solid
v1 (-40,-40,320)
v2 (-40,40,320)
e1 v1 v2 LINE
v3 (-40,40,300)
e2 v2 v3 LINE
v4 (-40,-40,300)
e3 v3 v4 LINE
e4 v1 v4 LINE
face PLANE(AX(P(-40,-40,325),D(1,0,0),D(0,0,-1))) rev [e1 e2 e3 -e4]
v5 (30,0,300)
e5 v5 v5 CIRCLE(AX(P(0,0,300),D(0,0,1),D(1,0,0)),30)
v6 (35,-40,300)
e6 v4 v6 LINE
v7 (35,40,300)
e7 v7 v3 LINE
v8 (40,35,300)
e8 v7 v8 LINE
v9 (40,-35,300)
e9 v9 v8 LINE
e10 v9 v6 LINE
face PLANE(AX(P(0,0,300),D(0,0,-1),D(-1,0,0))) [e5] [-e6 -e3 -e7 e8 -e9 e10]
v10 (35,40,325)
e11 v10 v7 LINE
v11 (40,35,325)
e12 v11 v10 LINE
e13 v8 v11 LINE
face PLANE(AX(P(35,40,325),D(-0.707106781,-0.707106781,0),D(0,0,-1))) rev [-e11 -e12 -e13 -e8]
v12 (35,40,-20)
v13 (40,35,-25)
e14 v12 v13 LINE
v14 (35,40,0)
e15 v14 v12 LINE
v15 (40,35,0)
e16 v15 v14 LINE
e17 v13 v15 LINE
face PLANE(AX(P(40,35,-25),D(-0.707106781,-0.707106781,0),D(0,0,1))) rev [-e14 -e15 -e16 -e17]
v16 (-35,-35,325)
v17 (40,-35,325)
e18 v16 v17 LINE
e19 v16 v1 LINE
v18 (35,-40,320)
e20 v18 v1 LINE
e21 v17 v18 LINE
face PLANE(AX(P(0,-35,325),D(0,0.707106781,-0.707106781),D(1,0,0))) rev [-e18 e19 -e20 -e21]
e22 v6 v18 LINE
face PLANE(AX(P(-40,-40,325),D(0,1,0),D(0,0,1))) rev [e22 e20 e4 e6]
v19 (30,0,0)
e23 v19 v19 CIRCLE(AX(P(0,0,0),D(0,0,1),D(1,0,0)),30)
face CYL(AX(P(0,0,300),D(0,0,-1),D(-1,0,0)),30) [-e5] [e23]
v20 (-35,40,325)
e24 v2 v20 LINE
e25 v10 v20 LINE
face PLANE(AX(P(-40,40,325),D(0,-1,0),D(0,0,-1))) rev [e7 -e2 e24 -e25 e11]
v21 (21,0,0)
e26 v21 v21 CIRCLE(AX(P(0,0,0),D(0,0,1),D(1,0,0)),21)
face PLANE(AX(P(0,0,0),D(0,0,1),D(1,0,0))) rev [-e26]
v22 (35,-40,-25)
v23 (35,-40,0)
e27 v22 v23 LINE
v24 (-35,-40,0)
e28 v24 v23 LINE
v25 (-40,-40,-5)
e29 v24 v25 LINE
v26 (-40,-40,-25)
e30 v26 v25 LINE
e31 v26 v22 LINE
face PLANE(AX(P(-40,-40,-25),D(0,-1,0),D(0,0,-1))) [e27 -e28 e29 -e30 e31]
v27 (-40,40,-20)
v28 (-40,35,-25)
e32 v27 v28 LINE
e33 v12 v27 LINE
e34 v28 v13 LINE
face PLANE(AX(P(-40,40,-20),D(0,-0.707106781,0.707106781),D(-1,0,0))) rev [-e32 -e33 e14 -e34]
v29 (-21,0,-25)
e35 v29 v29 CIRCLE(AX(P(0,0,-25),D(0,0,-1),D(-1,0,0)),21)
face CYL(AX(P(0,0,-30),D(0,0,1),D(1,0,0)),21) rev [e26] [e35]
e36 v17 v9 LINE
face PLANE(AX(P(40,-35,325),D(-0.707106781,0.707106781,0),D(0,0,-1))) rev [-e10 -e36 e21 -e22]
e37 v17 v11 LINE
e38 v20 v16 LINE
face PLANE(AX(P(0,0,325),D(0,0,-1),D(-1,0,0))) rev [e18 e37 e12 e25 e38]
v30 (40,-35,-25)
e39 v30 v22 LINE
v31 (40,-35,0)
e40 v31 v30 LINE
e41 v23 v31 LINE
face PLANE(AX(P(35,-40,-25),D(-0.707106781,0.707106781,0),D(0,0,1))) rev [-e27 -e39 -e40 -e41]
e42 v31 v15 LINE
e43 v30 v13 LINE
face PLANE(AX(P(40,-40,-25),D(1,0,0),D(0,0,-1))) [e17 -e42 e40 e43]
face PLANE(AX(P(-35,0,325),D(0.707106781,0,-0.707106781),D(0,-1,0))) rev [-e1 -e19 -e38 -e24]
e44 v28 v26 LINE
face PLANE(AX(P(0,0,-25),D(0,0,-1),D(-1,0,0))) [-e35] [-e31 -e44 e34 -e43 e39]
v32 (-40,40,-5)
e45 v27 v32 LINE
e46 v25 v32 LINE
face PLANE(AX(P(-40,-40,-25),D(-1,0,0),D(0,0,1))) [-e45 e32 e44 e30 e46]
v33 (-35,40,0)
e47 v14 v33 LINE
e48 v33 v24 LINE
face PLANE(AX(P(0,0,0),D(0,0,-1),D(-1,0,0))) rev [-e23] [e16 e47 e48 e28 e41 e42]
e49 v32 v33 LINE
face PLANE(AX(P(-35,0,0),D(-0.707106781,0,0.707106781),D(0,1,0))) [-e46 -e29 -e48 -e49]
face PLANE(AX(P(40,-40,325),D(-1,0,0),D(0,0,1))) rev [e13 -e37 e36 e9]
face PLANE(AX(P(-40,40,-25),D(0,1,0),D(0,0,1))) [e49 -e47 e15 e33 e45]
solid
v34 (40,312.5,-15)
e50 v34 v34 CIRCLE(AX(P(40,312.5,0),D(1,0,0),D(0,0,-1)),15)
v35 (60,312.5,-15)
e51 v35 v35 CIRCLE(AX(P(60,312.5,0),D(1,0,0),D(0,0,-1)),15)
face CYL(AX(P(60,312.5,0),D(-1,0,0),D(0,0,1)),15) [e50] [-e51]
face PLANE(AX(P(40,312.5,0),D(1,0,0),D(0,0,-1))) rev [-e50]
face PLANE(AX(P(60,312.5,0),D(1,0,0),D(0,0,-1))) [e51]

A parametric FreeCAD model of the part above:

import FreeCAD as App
import Part
import Sketcher

V = App.Vector
Q = App.Units.Quantity


def edges_at(feature, points):
    """Names of the edges that pass closest to the given points."""
    edges = feature.Shape.Edges
    near = lambda p: min(range(len(edges)), key=lambda i: edges[i].distToShape(Part.Vertex(*p))[0])
    return sorted({f"Edge{near(p) + 1}" for p in points})

doc = App.newDocument("Part")
body = doc.addObject("PartDesign::Body", "Body")

sketch1 = body.newObject("Sketcher::SketchObject", "Sketch")
sketch1.AttachmentSupport = (doc.getObject("XY_Plane"), [""])
sketch1.MapMode = "FlatFace"
sketch1.addGeometry(Part.Circle(V(0, 0, 0), V(0, 0, 1), 30), False)
sketch1.addConstraint([
    Sketcher.Constraint("Coincident", 0, 3, -1, 1),
    Sketcher.Constraint("Diameter", 0, Q("60 mm")),
])
pad1 = body.newObject("PartDesign::Pad", "Pad")
pad1.Profile = sketch1
pad1.Length = 300

sketch2 = body.newObject("Sketcher::SketchObject", "Sketch001")
sketch2.AttachmentSupport = (doc.getObject("XY_Plane"), [""])
sketch2.MapMode = "FlatFace"
sketch2.addGeometry([
    Part.LineSegment(V(-40, 40, 0), V(-40, -40, 0)),
    Part.LineSegment(V(-40, -40, 0), V(40, -40, 0)),
    Part.LineSegment(V(40, -40, 0), V(40, 40, 0)),
    Part.LineSegment(V(40, 40, 0), V(-40, 40, 0)),
], False)
sketch2.addConstraint([
    Sketcher.Constraint("Coincident", 0, 2, 1, 1),
    Sketcher.Constraint("Coincident", 1, 2, 2, 1),
    Sketcher.Constraint("Coincident", 2, 2, 3, 1),
    Sketcher.Constraint("Coincident", 3, 2, 0, 1),
    Sketcher.Constraint("Vertical", 0),
    Sketcher.Constraint("Horizontal", 1),
    Sketcher.Constraint("Vertical", 2),
    Sketcher.Constraint("Horizontal", 3),
    Sketcher.Constraint("Symmetric", 0, 2, 2, 2, -1, 1),
    Sketcher.Constraint("Equal", 3, 0),
    Sketcher.Constraint("DistanceX", 1, 1, 1, 2, Q("80 mm")),
])
pad2 = body.newObject("PartDesign::Pad", "Pad001")
pad2.Profile = sketch2
pad2.Length = 25
pad2.Reversed = True

sketch3 = body.newObject("Sketcher::SketchObject", "Sketch002")
sketch3.AttachmentSupport = (doc.getObject("XY_Plane"), [""])
sketch3.MapMode = "FlatFace"
sketch3.addGeometry(Part.Circle(V(0, 0, 0), V(0, 0, 1), 21), False)
sketch3.addConstraint([
    Sketcher.Constraint("Coincident", 0, 3, -1, 1),
    Sketcher.Constraint("Diameter", 0, Q("42 mm")),
])
pocket1 = body.newObject("PartDesign::Pocket", "Pocket")
pocket1.Profile = sketch3
pocket1.Length = 30

sketch4 = body.newObject("Sketcher::SketchObject", "Sketch003")
sketch4.AttachmentSupport = (doc.getObject("XY_Plane"), [""])
sketch4.MapMode = "FlatFace"
sketch4.AttachmentOffset = App.Placement(V(0, 0, 300), App.Rotation())
sketch4.addGeometry([
    Part.LineSegment(V(-40, 40, 0), V(-40, -40, 0)),
    Part.LineSegment(V(-40, -40, 0), V(40, -40, 0)),
    Part.LineSegment(V(40, -40, 0), V(40, 40, 0)),
    Part.LineSegment(V(40, 40, 0), V(-40, 40, 0)),
], False)
sketch4.addConstraint([
    Sketcher.Constraint("Coincident", 0, 2, 1, 1),
    Sketcher.Constraint("Coincident", 1, 2, 2, 1),
    Sketcher.Constraint("Coincident", 2, 2, 3, 1),
    Sketcher.Constraint("Coincident", 3, 2, 0, 1),
    Sketcher.Constraint("Vertical", 0),
    Sketcher.Constraint("Horizontal", 1),
    Sketcher.Constraint("Vertical", 2),
    Sketcher.Constraint("Horizontal", 3),
    Sketcher.Constraint("Symmetric", 0, 2, 2, 2, -1, 1),
    Sketcher.Constraint("Equal", 3, 0),
    Sketcher.Constraint("DistanceX", 1, 1, 1, 2, Q("80 mm")),
])
pad3 = body.newObject("PartDesign::Pad", "Pad002")
pad3.Profile = sketch4
pad3.Length = 25
doc.recompute()

chamfer = body.newObject("PartDesign::Chamfer", "Chamfer")
chamfer.Base = (pad3, edges_at(pad3, [
    (40, 40, -12.5),
    (40, -40, -12.5),
    (0, 40, -25),
    (-40, 0, 0),
]))
chamfer.Size = 5
doc.recompute()

chamfer2 = body.newObject("PartDesign::Chamfer", "Chamfer001")
chamfer2.Base = (chamfer, edges_at(chamfer, [
    (40, -40, 312.5),
    (40, 40, 312.5),
    (-40, 0, 325),
    (0, -40, 325),
]))
chamfer2.Size = 5
body2 = doc.addObject("PartDesign::Body", "Body001")

sketch5 = body2.newObject("Sketcher::SketchObject", "Sketch004")
sketch5.AttachmentSupport = (doc.getObject("YZ_Plane001"), [""])
sketch5.MapMode = "FlatFace"
sketch5.AttachmentOffset = App.Placement(V(0, 0, 40), App.Rotation())
sketch5.addGeometry(Part.Circle(V(312.5, 0, 0), V(0, 0, 1), 15), False)
sketch5.addConstraint([
    Sketcher.Constraint("PointOnObject", 0, 3, -1),
    Sketcher.Constraint("Diameter", 0, Q("30 mm")),
    Sketcher.Constraint("DistanceX", -1, 1, 0, 3, Q("312.5 mm")),
])
pad4 = body2.newObject("PartDesign::Pad", "Pad003")
pad4.Profile = sketch5
pad4.Length = 20

doc.recompute()
